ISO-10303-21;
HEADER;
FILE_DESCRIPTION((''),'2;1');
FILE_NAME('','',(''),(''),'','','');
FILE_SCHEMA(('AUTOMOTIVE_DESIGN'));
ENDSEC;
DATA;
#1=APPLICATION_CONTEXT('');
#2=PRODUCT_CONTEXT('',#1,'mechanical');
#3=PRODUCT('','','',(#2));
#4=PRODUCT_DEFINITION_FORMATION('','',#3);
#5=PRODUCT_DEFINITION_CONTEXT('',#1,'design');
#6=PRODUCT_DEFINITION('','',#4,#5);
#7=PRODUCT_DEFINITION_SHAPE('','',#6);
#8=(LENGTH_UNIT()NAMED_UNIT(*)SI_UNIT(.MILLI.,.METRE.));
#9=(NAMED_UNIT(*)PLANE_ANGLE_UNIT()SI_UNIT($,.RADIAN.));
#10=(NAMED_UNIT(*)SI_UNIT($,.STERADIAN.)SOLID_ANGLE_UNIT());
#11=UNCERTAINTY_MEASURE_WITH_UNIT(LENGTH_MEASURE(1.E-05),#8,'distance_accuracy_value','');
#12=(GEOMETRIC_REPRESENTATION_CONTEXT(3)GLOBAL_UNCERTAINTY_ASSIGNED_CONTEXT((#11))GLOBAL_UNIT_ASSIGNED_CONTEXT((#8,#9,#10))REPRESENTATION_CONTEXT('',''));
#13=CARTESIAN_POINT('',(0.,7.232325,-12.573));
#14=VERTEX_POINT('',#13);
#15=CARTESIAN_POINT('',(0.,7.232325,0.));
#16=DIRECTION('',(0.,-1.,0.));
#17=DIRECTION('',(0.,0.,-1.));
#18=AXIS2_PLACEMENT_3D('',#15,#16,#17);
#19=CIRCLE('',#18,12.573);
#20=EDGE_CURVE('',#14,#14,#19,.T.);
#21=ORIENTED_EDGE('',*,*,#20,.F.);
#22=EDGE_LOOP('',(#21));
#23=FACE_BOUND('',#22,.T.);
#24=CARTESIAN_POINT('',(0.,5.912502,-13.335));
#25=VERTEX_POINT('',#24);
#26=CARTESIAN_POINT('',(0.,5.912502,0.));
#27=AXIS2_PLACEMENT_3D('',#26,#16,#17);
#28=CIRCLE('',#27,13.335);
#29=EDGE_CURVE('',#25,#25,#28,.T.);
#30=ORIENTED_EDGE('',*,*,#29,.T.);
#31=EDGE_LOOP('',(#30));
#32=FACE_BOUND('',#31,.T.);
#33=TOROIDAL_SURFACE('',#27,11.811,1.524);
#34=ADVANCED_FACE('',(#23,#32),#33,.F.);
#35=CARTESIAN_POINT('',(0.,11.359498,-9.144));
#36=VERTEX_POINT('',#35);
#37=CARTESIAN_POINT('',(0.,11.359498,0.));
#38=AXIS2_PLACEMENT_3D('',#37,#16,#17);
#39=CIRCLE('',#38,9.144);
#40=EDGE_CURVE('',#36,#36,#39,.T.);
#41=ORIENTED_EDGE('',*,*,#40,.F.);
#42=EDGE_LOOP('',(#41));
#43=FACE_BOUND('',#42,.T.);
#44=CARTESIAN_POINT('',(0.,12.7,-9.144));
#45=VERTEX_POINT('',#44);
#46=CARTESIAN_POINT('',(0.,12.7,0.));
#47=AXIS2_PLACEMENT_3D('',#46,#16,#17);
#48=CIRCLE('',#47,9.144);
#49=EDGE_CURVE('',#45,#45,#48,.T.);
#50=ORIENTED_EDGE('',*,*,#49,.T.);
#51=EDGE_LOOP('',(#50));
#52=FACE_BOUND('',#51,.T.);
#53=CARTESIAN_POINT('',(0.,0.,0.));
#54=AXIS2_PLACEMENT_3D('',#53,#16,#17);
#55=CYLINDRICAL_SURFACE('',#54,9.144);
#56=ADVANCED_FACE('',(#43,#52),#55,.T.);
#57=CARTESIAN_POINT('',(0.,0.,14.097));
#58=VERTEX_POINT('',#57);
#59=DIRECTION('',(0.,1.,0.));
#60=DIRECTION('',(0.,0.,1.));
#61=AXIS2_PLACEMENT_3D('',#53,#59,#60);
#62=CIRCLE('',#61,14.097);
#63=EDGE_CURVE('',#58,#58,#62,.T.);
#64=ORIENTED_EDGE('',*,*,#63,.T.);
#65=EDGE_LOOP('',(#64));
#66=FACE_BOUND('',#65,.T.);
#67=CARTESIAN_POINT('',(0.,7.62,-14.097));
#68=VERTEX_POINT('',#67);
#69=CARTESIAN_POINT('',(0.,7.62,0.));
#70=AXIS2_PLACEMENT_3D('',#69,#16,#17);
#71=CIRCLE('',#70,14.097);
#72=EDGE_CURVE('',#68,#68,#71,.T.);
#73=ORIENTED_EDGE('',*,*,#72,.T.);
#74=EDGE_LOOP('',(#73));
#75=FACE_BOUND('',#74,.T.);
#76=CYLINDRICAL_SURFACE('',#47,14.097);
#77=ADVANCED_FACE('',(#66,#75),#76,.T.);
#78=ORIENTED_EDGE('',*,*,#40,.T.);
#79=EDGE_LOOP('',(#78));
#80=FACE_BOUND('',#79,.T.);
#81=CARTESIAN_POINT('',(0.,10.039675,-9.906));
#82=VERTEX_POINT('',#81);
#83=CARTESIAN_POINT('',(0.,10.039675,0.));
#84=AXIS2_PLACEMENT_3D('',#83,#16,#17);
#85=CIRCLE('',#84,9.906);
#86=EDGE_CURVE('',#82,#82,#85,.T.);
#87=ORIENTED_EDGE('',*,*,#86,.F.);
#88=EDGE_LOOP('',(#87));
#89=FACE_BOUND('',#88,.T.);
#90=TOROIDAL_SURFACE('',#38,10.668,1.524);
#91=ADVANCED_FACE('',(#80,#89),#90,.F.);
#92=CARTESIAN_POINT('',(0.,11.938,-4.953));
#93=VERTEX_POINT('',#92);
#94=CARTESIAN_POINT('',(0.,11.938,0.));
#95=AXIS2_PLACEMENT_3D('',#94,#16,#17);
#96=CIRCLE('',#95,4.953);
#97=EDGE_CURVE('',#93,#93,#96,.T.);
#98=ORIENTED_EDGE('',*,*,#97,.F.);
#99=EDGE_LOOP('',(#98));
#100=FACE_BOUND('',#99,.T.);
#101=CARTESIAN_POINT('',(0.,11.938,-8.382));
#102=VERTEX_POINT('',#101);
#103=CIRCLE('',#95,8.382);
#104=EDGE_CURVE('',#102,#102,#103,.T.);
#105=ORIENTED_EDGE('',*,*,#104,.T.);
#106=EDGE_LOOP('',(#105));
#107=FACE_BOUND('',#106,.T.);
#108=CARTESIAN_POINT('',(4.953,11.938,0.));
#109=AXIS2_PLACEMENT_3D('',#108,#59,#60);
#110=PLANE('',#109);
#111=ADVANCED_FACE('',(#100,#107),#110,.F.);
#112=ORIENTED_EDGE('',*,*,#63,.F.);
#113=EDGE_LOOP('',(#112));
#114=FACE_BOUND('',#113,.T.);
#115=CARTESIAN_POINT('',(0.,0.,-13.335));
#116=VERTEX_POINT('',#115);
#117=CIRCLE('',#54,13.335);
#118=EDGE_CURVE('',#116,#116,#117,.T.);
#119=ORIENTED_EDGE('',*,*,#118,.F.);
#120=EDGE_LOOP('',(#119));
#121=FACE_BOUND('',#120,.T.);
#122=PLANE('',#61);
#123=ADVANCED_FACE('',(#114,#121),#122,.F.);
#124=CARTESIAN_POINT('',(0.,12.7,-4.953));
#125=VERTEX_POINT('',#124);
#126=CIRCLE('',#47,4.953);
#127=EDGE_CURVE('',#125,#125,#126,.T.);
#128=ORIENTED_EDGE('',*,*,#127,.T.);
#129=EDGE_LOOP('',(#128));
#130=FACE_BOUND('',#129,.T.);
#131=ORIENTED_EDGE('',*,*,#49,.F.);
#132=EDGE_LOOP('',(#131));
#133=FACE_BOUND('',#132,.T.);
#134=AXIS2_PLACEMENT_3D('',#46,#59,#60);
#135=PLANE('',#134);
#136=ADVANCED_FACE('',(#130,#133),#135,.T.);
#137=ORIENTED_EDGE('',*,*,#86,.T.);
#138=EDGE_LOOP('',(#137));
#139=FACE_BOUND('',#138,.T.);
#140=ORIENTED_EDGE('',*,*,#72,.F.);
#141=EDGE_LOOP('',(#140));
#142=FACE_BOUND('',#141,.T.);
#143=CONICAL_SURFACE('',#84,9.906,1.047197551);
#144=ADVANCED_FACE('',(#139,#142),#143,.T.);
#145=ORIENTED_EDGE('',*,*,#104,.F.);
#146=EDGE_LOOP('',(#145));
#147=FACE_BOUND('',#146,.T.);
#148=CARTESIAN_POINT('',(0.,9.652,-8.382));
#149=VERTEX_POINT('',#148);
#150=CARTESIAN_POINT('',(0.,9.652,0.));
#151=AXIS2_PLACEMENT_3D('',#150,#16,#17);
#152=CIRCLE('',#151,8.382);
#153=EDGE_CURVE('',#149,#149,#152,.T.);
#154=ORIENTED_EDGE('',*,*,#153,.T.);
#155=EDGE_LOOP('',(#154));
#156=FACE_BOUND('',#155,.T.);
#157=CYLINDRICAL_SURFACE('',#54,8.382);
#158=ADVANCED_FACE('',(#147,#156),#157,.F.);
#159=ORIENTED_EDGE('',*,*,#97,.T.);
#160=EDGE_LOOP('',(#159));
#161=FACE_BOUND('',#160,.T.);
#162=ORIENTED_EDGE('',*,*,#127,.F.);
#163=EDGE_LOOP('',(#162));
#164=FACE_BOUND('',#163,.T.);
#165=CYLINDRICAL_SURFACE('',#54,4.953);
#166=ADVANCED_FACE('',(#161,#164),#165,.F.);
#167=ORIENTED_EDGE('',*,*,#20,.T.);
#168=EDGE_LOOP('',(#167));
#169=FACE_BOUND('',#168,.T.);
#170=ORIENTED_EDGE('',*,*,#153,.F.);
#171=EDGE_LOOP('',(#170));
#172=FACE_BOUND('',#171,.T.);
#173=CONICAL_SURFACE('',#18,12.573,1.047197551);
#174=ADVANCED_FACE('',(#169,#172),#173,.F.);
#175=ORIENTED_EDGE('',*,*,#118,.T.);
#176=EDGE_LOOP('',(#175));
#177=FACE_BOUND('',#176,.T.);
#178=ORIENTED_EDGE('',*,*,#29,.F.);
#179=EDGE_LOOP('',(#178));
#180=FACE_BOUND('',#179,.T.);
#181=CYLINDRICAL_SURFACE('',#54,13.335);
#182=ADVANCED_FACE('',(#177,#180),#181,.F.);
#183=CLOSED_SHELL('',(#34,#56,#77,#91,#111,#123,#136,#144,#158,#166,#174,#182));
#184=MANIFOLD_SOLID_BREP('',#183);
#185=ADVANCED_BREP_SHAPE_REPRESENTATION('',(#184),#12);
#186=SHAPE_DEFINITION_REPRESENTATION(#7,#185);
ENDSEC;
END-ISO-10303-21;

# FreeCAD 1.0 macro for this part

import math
import FreeCAD as App
import Part
import Sketcher
from FreeCAD import Vector
Q = App.Units.Quantity

doc = App.newDocument("Part")
body = doc.addObject("PartDesign::Body", "Body")

sketch1 = doc.addObject("Sketcher::SketchObject", "Sketch")
body.addObject(sketch1)
sketch1.AttachmentSupport = (doc.XZ_Plane, [""])
sketch1.MapMode = "FlatFace"
sketch1.addGeometry(Part.Circle(Vector(0, 0, 0), Vector(0, 0, 1), 14), False)
sketch1.addConstraint(Sketcher.Constraint("Coincident", 0, 3, -1, 1))
sketch1.addConstraint(Sketcher.Constraint("Diameter", 0, Q("1.11 in")))
pad1 = doc.addObject("PartDesign::Pad", "Pad")
body.addObject(pad1)
pad1.Profile = sketch1
pad1.Length = Q("0.5 in")
pad1.Reversed = True

sketch2 = doc.addObject("Sketcher::SketchObject", "Sketch001")
body.addObject(sketch2)
sketch2.AttachmentSupport = (doc.XY_Plane, [""])
sketch2.MapMode = "FlatFace"
sketch2.addGeometry(Part.LineSegment(Vector(5, 11.9, 0), Vector(5, 12.7, 0)), False)
sketch2.addGeometry(Part.LineSegment(Vector(5, 12.7, 0), Vector(0, 12.7, 0)), False)
sketch2.addGeometry(Part.LineSegment(Vector(0, 12.7, 0), Vector(0, 0, 0)), False)
sketch2.addGeometry(Part.LineSegment(Vector(0, 0, 0), Vector(13.3, 0, 0)), False)
sketch2.addGeometry(Part.LineSegment(Vector(13.3, 0, 0), Vector(13.3, 5.9, 0)), False)
sketch2.addGeometry(Part.ArcOfCircle(Part.Circle(Vector(11.8, 5.9, 0), Vector(0, 0, 1), 1.5), math.radians(0), math.radians(60)), False)
sketch2.addGeometry(Part.LineSegment(Vector(12.6, 7.2, 0), Vector(8.4, 9.7, 0)), False)
sketch2.addGeometry(Part.LineSegment(Vector(8.4, 9.7, 0), Vector(8.4, 11.9, 0)), False)
sketch2.addGeometry(Part.LineSegment(Vector(8.4, 11.9, 0), Vector(5, 11.9, 0)), False)
sketch2.addConstraint(Sketcher.Constraint("Coincident", 0, 2, 1, 1))
sketch2.addConstraint(Sketcher.Constraint("Coincident", 1, 2, 2, 1))
sketch2.addConstraint(Sketcher.Constraint("Coincident", 2, 2, 3, 1))
sketch2.addConstraint(Sketcher.Constraint("Coincident", 3, 2, 4, 1))
sketch2.addConstraint(Sketcher.Constraint("Tangent", 4, 2, 5, 1))
sketch2.addConstraint(Sketcher.Constraint("Tangent", 5, 2, 6, 1))
sketch2.addConstraint(Sketcher.Constraint("Coincident", 6, 2, 7, 1))
sketch2.addConstraint(Sketcher.Constraint("Coincident", 7, 2, 8, 1))
sketch2.addConstraint(Sketcher.Constraint("Coincident", 8, 2, 0, 1))
sketch2.addConstraint(Sketcher.Constraint("Vertical", 0))
sketch2.addConstraint(Sketcher.Constraint("Horizontal", 1))
sketch2.addConstraint(Sketcher.Constraint("Vertical", 2))
sketch2.addConstraint(Sketcher.Constraint("Horizontal", 3))
sketch2.addConstraint(Sketcher.Constraint("Vertical", 4))
sketch2.addConstraint(Sketcher.Constraint("Vertical", 7))
sketch2.addConstraint(Sketcher.Constraint("Horizontal", 8))
sketch2.addConstraint(Sketcher.Constraint("Coincident", 2, 2, -1, 1))
sketch2.addConstraint(Sketcher.Constraint("Radius", 5, Q("0.06 in")))
sketch2.addConstraint(Sketcher.Constraint("DistanceY", 2, 2, 2, 1, Q("0.5 in")))
sketch2.addConstraint(Sketcher.Constraint("Angle", 6, Q("150 deg")))
sketch2.addConstraint(Sketcher.Constraint("DistanceY", 0, 1, 0, 2, Q("0.03 in")))
sketch2.addConstraint(Sketcher.Constraint("DistanceY", 7, 1, 7, 2, Q("0.09 in")))
sketch2.addConstraint(Sketcher.Constraint("DistanceX", 0, 2, 5, 2, Q("0.3 in")))
sketch2.addConstraint(Sketcher.Constraint("DistanceX", 1, 2, 1, 1, Q("0.195 in")))
sketch2.addConstraint(Sketcher.Constraint("DistanceX", 8, 2, 8, 1, Q("0.135 in")))
groove = doc.addObject("PartDesign::Groove", "Groove")
body.addObject(groove)
groove.Profile = sketch2
groove.ReferenceAxis = (sketch2, ["V_Axis"])
groove.Angle = 360

sketch3 = doc.addObject("Sketcher::SketchObject", "Sketch002")
body.addObject(sketch3)
sketch3.AttachmentSupport = (doc.XY_Plane, [""])
sketch3.MapMode = "FlatFace"
sketch3.addGeometry(Part.LineSegment(Vector(14.1, 7.6, 0), Vector(14.1, 12.7, 0)), False)
sketch3.addGeometry(Part.LineSegment(Vector(14.1, 12.7, 0), Vector(9.1, 12.7, 0)), False)
sketch3.addGeometry(Part.LineSegment(Vector(9.1, 12.7, 0), Vector(9.1, 11.4, 0)), False)
sketch3.addGeometry(Part.ArcOfCircle(Part.Circle(Vector(10.7, 11.4, 0), Vector(0, 0, 1), 1.5), math.radians(-180), math.radians(-120)), False)
sketch3.addGeometry(Part.LineSegment(Vector(9.9, 10, 0), Vector(14.1, 7.6, 0)), False)
sketch3.addConstraint(Sketcher.Constraint("Coincident", 0, 2, 1, 1))
sketch3.addConstraint(Sketcher.Constraint("Coincident", 1, 2, 2, 1))
sketch3.addConstraint(Sketcher.Constraint("Tangent", 2, 2, 3, 1))
sketch3.addConstraint(Sketcher.Constraint("Tangent", 3, 2, 4, 1))
sketch3.addConstraint(Sketcher.Constraint("Coincident", 4, 2, 0, 1))
sketch3.addConstraint(Sketcher.Constraint("Vertical", 0))
sketch3.addConstraint(Sketcher.Constraint("Horizontal", 1))
sketch3.addConstraint(Sketcher.Constraint("Vertical", 2))
sketch3.addConstraint(Sketcher.Constraint("Radius", 3, Q("0.06 in")))
sketch3.addConstraint(Sketcher.Constraint("DistanceY", 0, 1, 0, 2, Q("0.2 in")))
sketch3.addConstraint(Sketcher.Constraint("Angle", 4, Q("-30 deg")))
sketch3.addConstraint(Sketcher.Constraint("DistanceY", -1, 1, 0, 2, Q("0.5 in")))
sketch3.addConstraint(Sketcher.Constraint("DistanceX", 1, 2, 1, 1, Q("0.195 in")))
sketch3.addConstraint(Sketcher.Constraint("DistanceX", -1, 1, 3, 3, Q("0.42 in")))
groove2 = doc.addObject("PartDesign::Groove", "Groove001")
body.addObject(groove2)
groove2.Profile = sketch3
groove2.ReferenceAxis = (sketch3, ["V_Axis"])
groove2.Angle = 360

doc.recompute()
